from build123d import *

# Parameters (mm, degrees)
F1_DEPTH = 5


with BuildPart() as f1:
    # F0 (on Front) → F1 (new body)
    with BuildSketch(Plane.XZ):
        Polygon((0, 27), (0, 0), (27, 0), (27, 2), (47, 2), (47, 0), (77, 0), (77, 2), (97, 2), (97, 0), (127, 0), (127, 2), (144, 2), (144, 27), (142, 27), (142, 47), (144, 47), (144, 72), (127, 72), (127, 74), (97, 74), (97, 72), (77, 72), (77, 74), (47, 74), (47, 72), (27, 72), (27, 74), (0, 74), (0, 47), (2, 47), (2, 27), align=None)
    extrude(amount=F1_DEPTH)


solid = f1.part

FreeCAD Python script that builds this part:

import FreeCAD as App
import Part
import Sketcher
from FreeCAD import Vector

doc = App.newDocument("Part")
params = doc.addObject("Spreadsheet::Sheet", "Params")
for row, (alias, value) in enumerate([
    ("sketch1_width", "27 mm"),
    ("sketch1_width2", "20 mm"),
    ("sketch1_width3", "30 mm"),
    ("sketch1_width4", "17 mm"),
    ("sketch1_width5", "2 mm"),
    ("pad1_length", "5 mm"),
], start=1):
    params.set(f"A{row}", alias)
    params.set(f"B{row}", "=" + value)
    params.setAlias(f"B{row}", alias)

body = doc.addObject("PartDesign::Body", "Body")

sketch1 = doc.addObject("Sketcher::SketchObject", "Sketch")
body.addObject(sketch1)
sketch1.AttachmentSupport = (doc.XZ_Plane, [""])
sketch1.MapMode = "FlatFace"
sketch1.addGeometry([
    Part.LineSegment(Vector(0, 27, 0), Vector(0, 0, 0)),
    Part.LineSegment(Vector(0, 0, 0), Vector(27, 0, 0)),
    Part.LineSegment(Vector(27, 0, 0), Vector(27, 2, 0)),
    Part.LineSegment(Vector(27, 2, 0), Vector(47, 2, 0)),
    Part.LineSegment(Vector(47, 2, 0), Vector(47, 0, 0)),
    Part.LineSegment(Vector(47, 0, 0), Vector(77, 0, 0)),
    Part.LineSegment(Vector(77, 0, 0), Vector(77, 2, 0)),
    Part.LineSegment(Vector(77, 2, 0), Vector(97, 2, 0)),
    Part.LineSegment(Vector(97, 2, 0), Vector(97, 0, 0)),
    Part.LineSegment(Vector(97, 0, 0), Vector(127, 0, 0)),
    Part.LineSegment(Vector(127, 0, 0), Vector(127, 2, 0)),
    Part.LineSegment(Vector(127, 2, 0), Vector(144, 2, 0)),
    Part.LineSegment(Vector(144, 2, 0), Vector(144, 27, 0)),
    Part.LineSegment(Vector(144, 27, 0), Vector(142, 27, 0)),
    Part.LineSegment(Vector(142, 27, 0), Vector(142, 47, 0)),
    Part.LineSegment(Vector(142, 47, 0), Vector(144, 47, 0)),
    Part.LineSegment(Vector(144, 47, 0), Vector(144, 72, 0)),
    Part.LineSegment(Vector(144, 72, 0), Vector(127, 72, 0)),
    Part.LineSegment(Vector(127, 72, 0), Vector(127, 74, 0)),
    Part.LineSegment(Vector(127, 74, 0), Vector(97, 74, 0)),
    Part.LineSegment(Vector(97, 74, 0), Vector(97, 72, 0)),
    Part.LineSegment(Vector(97, 72, 0), Vector(77, 72, 0)),
    Part.LineSegment(Vector(77, 72, 0), Vector(77, 74, 0)),
    Part.LineSegment(Vector(77, 74, 0), Vector(47, 74, 0)),
    Part.LineSegment(Vector(47, 74, 0), Vector(47, 72, 0)),
    Part.LineSegment(Vector(47, 72, 0), Vector(27, 72, 0)),
    Part.LineSegment(Vector(27, 72, 0), Vector(27, 74, 0)),
    Part.LineSegment(Vector(27, 74, 0), Vector(0, 74, 0)),
    Part.LineSegment(Vector(0, 74, 0), Vector(0, 47, 0)),
    Part.LineSegment(Vector(0, 47, 0), Vector(2, 47, 0)),
    Part.LineSegment(Vector(2, 47, 0), Vector(2, 27, 0)),
    Part.LineSegment(Vector(2, 27, 0), Vector(0, 27, 0)),
], False)
sketch1.addConstraint([
    Sketcher.Constraint("Coincident", 0, 2, 1, 1),
    Sketcher.Constraint("Coincident", 1, 2, 2, 1),
    Sketcher.Constraint("Coincident", 2, 2, 3, 1),
    Sketcher.Constraint("Coincident", 3, 2, 4, 1),
    Sketcher.Constraint("Coincident", 4, 2, 5, 1),
    Sketcher.Constraint("Coincident", 5, 2, 6, 1),
    Sketcher.Constraint("Coincident", 6, 2, 7, 1),
    Sketcher.Constraint("Coincident", 7, 2, 8, 1),
    Sketcher.Constraint("Coincident", 8, 2, 9, 1),
    Sketcher.Constraint("Coincident", 9, 2, 10, 1),
    Sketcher.Constraint("Coincident", 10, 2, 11, 1),
    Sketcher.Constraint("Coincident", 11, 2, 12, 1),
    Sketcher.Constraint("Coincident", 12, 2, 13, 1),
    Sketcher.Constraint("Coincident", 13, 2, 14, 1),
    Sketcher.Constraint("Coincident", 14, 2, 15, 1),
    Sketcher.Constraint("Coincident", 15, 2, 16, 1),
    Sketcher.Constraint("Coincident", 16, 2, 17, 1),
    Sketcher.Constraint("Coincident", 17, 2, 18, 1),
    Sketcher.Constraint("Coincident", 18, 2, 19, 1),
    Sketcher.Constraint("Coincident", 19, 2, 20, 1),
    Sketcher.Constraint("Coincident", 20, 2, 21, 1),
    Sketcher.Constraint("Coincident", 21, 2, 22, 1),
    Sketcher.Constraint("Coincident", 22, 2, 23, 1),
    Sketcher.Constraint("Coincident", 23, 2, 24, 1),
    Sketcher.Constraint("Coincident", 24, 2, 25, 1),
    Sketcher.Constraint("Coincident", 25, 2, 26, 1),
    Sketcher.Constraint("Coincident", 26, 2, 27, 1),
    Sketcher.Constraint("Coincident", 27, 2, 28, 1),
    Sketcher.Constraint("Coincident", 28, 2, 29, 1),
    Sketcher.Constraint("Coincident", 29, 2, 30, 1),
    Sketcher.Constraint("Coincident", 30, 2, 31, 1),
    Sketcher.Constraint("Coincident", 31, 2, 0, 1),
    Sketcher.Constraint("Vertical", 0),
    Sketcher.Constraint("Horizontal", 1),
    Sketcher.Constraint("Vertical", 2),
    Sketcher.Constraint("Horizontal", 3),
    Sketcher.Constraint("Vertical", 4),
    Sketcher.Constraint("Horizontal", 5),
    Sketcher.Constraint("Vertical", 6),
    Sketcher.Constraint("Horizontal", 7),
    Sketcher.Constraint("Vertical", 8),
    Sketcher.Constraint("Horizontal", 9),
    Sketcher.Constraint("Vertical", 10),
    Sketcher.Constraint("Horizontal", 11),
    Sketcher.Constraint("Vertical", 12),
    Sketcher.Constraint("Horizontal", 13),
    Sketcher.Constraint("Vertical", 14),
    Sketcher.Constraint("Horizontal", 15),
    Sketcher.Constraint("Vertical", 16),
    Sketcher.Constraint("Horizontal", 17),
    Sketcher.Constraint("Vertical", 18),
    Sketcher.Constraint("Horizontal", 19),
    Sketcher.Constraint("Vertical", 20),
    Sketcher.Constraint("Horizontal", 21),
    Sketcher.Constraint("Vertical", 22),
    Sketcher.Constraint("Horizontal", 23),
    Sketcher.Constraint("Vertical", 24),
    Sketcher.Constraint("Horizontal", 25),
    Sketcher.Constraint("Vertical", 26),
    Sketcher.Constraint("Horizontal", 27),
    Sketcher.Constraint("Vertical", 28),
    Sketcher.Constraint("Horizontal", 29),
    Sketcher.Constraint("Vertical", 30),
    Sketcher.Constraint("Horizontal", 31),
    Sketcher.Constraint("Coincident", 0, 2, -1, 1),
    Sketcher.Constraint("PointOnObject", 4, 2, -1),
    Sketcher.Constraint("PointOnObject", 8, 2, -1),
    Sketcher.Constraint("PointOnObject", 27, 2, -2),
    Sketcher.Constraint("Horizontal", 3, 2, 6, 2),
    Sketcher.Constraint("Horizontal", 7, 2, 10, 2),
    Sketcher.Constraint("Horizontal", 17, 2, 20, 2),
    Sketcher.Constraint("Horizontal", 19, 2, 22, 2),
    Sketcher.Constraint("Horizontal", 21, 2, 24, 2),
    Sketcher.Constraint("Horizontal", 23, 2, 26, 2),
    Sketcher.Constraint("Horizontal", 15, 2, 28, 2),
    Sketcher.Constraint("Horizontal", 13, 2, 30, 2),
    Sketcher.Constraint("Vertical", 12, 2, 15, 2),
    Sketcher.Constraint("Vertical", 10, 2, 17, 2),
    Sketcher.Constraint("Vertical", 8, 2, 19, 2),
    Sketcher.Constraint("Vertical", 6, 2, 21, 2),
    Sketcher.Constraint("Vertical", 4, 2, 23, 2),
    Sketcher.Constraint("Vertical", 2, 2, 25, 2),
    Sketcher.Constraint("Equal", 3, 7),
    Sketcher.Constraint("Equal", 5, 9),
    Sketcher.Constraint("Equal", 15, 29),
    Sketcher.Constraint("Equal", 27, 0),
    Sketcher.Constraint("Equal", 31, 2),
    Sketcher.Constraint("Equal", 25, 14),
    Sketcher.Constraint("Equal", 12, 16),
    Sketcher.Constraint("Equal", 10, 18),
    Sketcher.Constraint("DistanceX", 1, 1, 1, 2, 27.0),
    Sketcher.Constraint("DistanceX", 3, 1, 3, 2, 20.0),
    Sketcher.Constraint("DistanceX", 5, 1, 5, 2, 30.0),
    Sketcher.Constraint("DistanceX", 11, 1, 11, 2, 17.0),
    Sketcher.Constraint("DistanceX", 13, 2, 13, 1, 2.0),
])
sketch1.setExpression("Constraints[90]", "Params.sketch1_width")
sketch1.setExpression("Constraints[91]", "Params.sketch1_width2")
sketch1.setExpression("Constraints[92]", "Params.sketch1_width3")
sketch1.setExpression("Constraints[93]", "Params.sketch1_width4")
sketch1.setExpression("Constraints[94]", "Params.sketch1_width5")
pad1 = doc.addObject("PartDesign::Pad", "Pad")
body.addObject(pad1)
pad1.Profile = sketch1
pad1.setExpression("Length", "Params.pad1_length")

doc.recompute()
